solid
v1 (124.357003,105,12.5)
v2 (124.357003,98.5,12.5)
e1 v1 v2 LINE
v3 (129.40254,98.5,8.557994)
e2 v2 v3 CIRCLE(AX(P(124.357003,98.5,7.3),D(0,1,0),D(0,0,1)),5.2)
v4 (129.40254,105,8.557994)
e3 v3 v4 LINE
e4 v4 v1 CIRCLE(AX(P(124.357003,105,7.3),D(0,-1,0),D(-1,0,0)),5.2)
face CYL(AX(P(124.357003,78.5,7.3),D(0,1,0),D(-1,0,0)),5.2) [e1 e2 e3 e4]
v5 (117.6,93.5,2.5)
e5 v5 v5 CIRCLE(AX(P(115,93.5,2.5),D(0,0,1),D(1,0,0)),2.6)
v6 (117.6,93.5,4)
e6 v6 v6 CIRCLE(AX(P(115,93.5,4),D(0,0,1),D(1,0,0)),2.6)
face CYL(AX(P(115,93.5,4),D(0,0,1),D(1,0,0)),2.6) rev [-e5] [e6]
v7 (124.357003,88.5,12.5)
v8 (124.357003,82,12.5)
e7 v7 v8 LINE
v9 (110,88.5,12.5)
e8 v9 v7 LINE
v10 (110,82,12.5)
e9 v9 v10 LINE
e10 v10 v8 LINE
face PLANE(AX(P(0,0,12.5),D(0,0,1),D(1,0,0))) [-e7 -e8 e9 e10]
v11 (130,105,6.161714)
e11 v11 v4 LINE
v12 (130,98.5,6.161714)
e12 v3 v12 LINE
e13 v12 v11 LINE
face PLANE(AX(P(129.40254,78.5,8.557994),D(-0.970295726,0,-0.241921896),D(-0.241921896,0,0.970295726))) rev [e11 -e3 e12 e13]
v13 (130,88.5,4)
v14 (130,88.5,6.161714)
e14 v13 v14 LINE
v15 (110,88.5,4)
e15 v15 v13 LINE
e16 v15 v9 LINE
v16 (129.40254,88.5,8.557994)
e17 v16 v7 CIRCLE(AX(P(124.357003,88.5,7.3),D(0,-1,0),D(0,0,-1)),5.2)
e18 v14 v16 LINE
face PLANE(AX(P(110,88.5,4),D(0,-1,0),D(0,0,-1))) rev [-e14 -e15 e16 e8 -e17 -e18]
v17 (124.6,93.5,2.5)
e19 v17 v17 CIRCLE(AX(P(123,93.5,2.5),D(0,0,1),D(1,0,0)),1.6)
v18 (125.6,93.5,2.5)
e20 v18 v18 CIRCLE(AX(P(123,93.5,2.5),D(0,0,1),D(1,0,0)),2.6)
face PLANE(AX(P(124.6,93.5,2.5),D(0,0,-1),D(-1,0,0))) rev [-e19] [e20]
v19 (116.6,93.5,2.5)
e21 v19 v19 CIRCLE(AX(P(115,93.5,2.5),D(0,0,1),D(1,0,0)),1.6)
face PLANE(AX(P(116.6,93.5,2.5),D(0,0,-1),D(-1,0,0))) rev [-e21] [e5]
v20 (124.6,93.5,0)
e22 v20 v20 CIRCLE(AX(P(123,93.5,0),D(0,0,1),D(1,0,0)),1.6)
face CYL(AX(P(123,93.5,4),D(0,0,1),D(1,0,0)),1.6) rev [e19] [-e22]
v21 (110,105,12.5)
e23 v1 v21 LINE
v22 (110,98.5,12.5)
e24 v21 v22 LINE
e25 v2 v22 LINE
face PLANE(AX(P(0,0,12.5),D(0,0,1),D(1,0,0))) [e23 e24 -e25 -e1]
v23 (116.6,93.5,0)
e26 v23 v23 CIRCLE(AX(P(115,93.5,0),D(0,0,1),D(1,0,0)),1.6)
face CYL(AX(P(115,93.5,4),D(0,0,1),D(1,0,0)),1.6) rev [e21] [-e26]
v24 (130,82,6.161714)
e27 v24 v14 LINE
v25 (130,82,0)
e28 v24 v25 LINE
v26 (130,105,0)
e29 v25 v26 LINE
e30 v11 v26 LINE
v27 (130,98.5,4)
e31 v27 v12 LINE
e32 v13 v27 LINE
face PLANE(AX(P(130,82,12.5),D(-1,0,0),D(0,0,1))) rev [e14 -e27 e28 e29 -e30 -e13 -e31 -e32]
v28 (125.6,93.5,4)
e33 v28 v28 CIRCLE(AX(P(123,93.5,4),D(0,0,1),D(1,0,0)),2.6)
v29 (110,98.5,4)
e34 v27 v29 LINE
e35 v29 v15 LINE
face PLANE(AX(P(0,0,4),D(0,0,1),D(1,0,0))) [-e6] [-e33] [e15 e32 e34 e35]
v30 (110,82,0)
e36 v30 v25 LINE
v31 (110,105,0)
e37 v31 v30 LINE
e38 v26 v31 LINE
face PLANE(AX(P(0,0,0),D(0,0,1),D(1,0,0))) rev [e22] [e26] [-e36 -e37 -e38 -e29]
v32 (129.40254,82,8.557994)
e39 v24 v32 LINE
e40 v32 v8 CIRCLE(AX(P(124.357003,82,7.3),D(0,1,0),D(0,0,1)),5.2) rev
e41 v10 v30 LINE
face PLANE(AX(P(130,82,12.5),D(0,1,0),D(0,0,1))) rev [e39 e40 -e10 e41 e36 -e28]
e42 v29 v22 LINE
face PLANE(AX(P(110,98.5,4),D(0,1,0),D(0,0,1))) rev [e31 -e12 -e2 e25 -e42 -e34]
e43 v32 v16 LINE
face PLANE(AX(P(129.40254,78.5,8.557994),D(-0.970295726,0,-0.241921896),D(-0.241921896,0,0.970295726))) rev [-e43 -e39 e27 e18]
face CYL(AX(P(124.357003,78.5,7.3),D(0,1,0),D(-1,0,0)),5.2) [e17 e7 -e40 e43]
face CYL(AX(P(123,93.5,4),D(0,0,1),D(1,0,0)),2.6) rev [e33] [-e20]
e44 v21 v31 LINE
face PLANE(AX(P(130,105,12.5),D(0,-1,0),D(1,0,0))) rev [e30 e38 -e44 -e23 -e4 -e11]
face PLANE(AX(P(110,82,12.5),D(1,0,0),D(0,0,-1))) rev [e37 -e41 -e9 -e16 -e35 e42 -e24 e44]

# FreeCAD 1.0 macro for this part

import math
import FreeCAD as App
import Part
import Sketcher
Q = App.Units.Quantity

doc = App.newDocument("Part")
params = doc.addObject("Spreadsheet::Sheet", "Params")
for row, (alias, value) in enumerate([
    ("sketch1_width", "20 mm"),
    ("sketch1_height", "23 mm"),
    ("pad1_length", "12.5 mm"),
    ("sketch2_radius", "5.2 mm"),
    ("pocket1_length", "26.5 mm"),
    ("sketch3_width", "20 mm"),
    ("sketch3_height", "10 mm"),
    ("pocket2_length", "8.5 mm"),
    ("sketch4_diameter", "3.2 mm"),
    ("hole_diameter", "3.2 mm"),
    ("hole_cbore_diameter", "5.2 mm"),
    ("hole_cbore_depth", "1.5 mm"),
], start=1):
    params.set(f"A{row}", alias)
    params.set(f"B{row}", "=" + value)
    params.setAlias(f"B{row}", alias)

body = doc.addObject("PartDesign::Body", "Body")

sketch1 = body.newObject("Sketcher::SketchObject", "Sketch")
sketch1.AttachmentSupport = (doc.getObject("XY_Plane"), [""])
sketch1.MapMode = "FlatFace"
sketch1.addGeometry([
    Part.LineSegment(App.Vector(110, 105, 0), App.Vector(110, 82, 0)),
    Part.LineSegment(App.Vector(110, 82, 0), App.Vector(130, 82, 0)),
    Part.LineSegment(App.Vector(130, 82, 0), App.Vector(130, 105, 0)),
    Part.LineSegment(App.Vector(130, 105, 0), App.Vector(110, 105, 0)),
], False)
sketch1.addConstraint([
    Sketcher.Constraint("Coincident", 0, 2, 1, 1),
    Sketcher.Constraint("Coincident", 1, 2, 2, 1),
    Sketcher.Constraint("Coincident", 2, 2, 3, 1),
    Sketcher.Constraint("Coincident", 3, 2, 0, 1),
    Sketcher.Constraint("Vertical", 0),
    Sketcher.Constraint("Horizontal", 1),
    Sketcher.Constraint("Vertical", 2),
    Sketcher.Constraint("Horizontal", 3),
    Sketcher.Constraint("DistanceX", 1, 1, 1, 2, 20.0),
    Sketcher.Constraint("DistanceY", 0, 2, 0, 1, 23.0),
    Sketcher.Constraint("DistanceX", -1, 1, 0, 2, 110.0),
    Sketcher.Constraint("DistanceY", -1, 1, 0, 2, 82.0),
])
sketch1.setExpression("Constraints[8]", "Params.sketch1_width")
sketch1.setExpression("Constraints[9]", "Params.sketch1_height")
pad1 = body.newObject("PartDesign::Pad", "Pad")
pad1.Profile = sketch1
pad1.setExpression("Length", "Params.pad1_length")

sketch2 = body.newObject("Sketcher::SketchObject", "Sketch001")
sketch2.AttachmentSupport = (doc.getObject("XZ_Plane"), [""])
sketch2.MapMode = "FlatFace"
sketch2.AttachmentOffset = App.Placement(App.Vector(0, 0, -105), App.Rotation())
sketch2.addGeometry([
    Part.LineSegment(App.Vector(130, 6.2, 0), App.Vector(129.4, 8.6, 0)),
    Part.ArcOfCircle(Part.Circle(App.Vector(124.4, 7.3, 0), App.Vector(0, 0, 1), 5.2), math.radians(14), math.radians(90)),
    Part.LineSegment(App.Vector(124.4, 12.5, 0), App.Vector(130, 12.5, 0)),
    Part.LineSegment(App.Vector(130, 12.5, 0), App.Vector(130, 6.2, 0)),
], False)
sketch2.addConstraint([
    Sketcher.Constraint("Tangent", 0, 2, 1, 1),
    Sketcher.Constraint("Tangent", 1, 2, 2, 1),
    Sketcher.Constraint("Coincident", 2, 2, 3, 1),
    Sketcher.Constraint("Coincident", 3, 2, 0, 1),
    Sketcher.Constraint("Horizontal", 2),
    Sketcher.Constraint("Vertical", 3),
    Sketcher.Constraint("Radius", 1, 5.2),
    Sketcher.Constraint("Angle", 0, Q("104 deg")),
    Sketcher.Constraint("DistanceX", -1, 1, 2, 2, 130.0),
    Sketcher.Constraint("DistanceY", -1, 1, 1, 3, 7.3),
    Sketcher.Constraint("Distance", 0, 2.469639),
])
sketch2.setExpression("Constraints[6]", "Params.sketch2_radius")
pocket1 = body.newObject("PartDesign::Pocket", "Pocket")
pocket1.Profile = sketch2
pocket1.setExpression("Length", "Params.pocket1_length")
pocket1.Reversed = True

sketch3 = body.newObject("Sketcher::SketchObject", "Sketch002")
sketch3.AttachmentSupport = (doc.getObject("XY_Plane"), [""])
sketch3.MapMode = "FlatFace"
sketch3.AttachmentOffset = App.Placement(App.Vector(0, 0, 12.5), App.Rotation())
sketch3.addGeometry([
    Part.LineSegment(App.Vector(110, 98, 0), App.Vector(110, 88, 0)),
    Part.LineSegment(App.Vector(110, 88, 0), App.Vector(130, 88, 0)),
    Part.LineSegment(App.Vector(130, 88, 0), App.Vector(130, 98, 0)),
    Part.LineSegment(App.Vector(130, 98, 0), App.Vector(110, 98, 0)),
], False)
sketch3.addConstraint([
    Sketcher.Constraint("Coincident", 0, 2, 1, 1),
    Sketcher.Constraint("Coincident", 1, 2, 2, 1),
    Sketcher.Constraint("Coincident", 2, 2, 3, 1),
    Sketcher.Constraint("Coincident", 3, 2, 0, 1),
    Sketcher.Constraint("Vertical", 0),
    Sketcher.Constraint("Horizontal", 1),
    Sketcher.Constraint("Vertical", 2),
    Sketcher.Constraint("Horizontal", 3),
    Sketcher.Constraint("DistanceX", 1, 1, 1, 2, 20.0),
    Sketcher.Constraint("DistanceY", 0, 2, 0, 1, 10.0),
    Sketcher.Constraint("DistanceX", -1, 1, 0, 2, 110.0),
    Sketcher.Constraint("DistanceY", -1, 1, 0, 2, 88.5),
])
sketch3.setExpression("Constraints[8]", "Params.sketch3_width")
sketch3.setExpression("Constraints[9]", "Params.sketch3_height")
pocket2 = body.newObject("PartDesign::Pocket", "Pocket001")
pocket2.Profile = sketch3
pocket2.setExpression("Length", "Params.pocket2_length")

sketch4 = body.newObject("Sketcher::SketchObject", "Sketch003")
sketch4.AttachmentSupport = (doc.getObject("XY_Plane"), [""])
sketch4.MapMode = "FlatFace"
sketch4.AttachmentOffset = App.Placement(App.Vector(0, 0, 4), App.Rotation())
sketch4.addGeometry([
    Part.Circle(App.Vector(115, 93.5, 0), App.Vector(0, 0, 1), 1.6),
    Part.Circle(App.Vector(123, 93.5, 0), App.Vector(0, 0, 1), 1.6),
], False)
sketch4.addConstraint([
    Sketcher.Constraint("Equal", 0, 1),
    Sketcher.Constraint("Horizontal", 0, 3, 1, 3),
    Sketcher.Constraint("Diameter", 0, 3.2),
    Sketcher.Constraint("DistanceX", -1, 1, 0, 3, 115.0),
    Sketcher.Constraint("DistanceX", -1, 1, 1, 3, 123.0),
    Sketcher.Constraint("DistanceY", -1, 1, 0, 3, 93.5),
])
sketch4.setExpression("Constraints[2]", "Params.sketch4_diameter")
doc.recompute()
hole = body.newObject("PartDesign::Hole", "Hole")
hole.Profile = sketch4
hole.ThreadType = "None"
hole.setExpression("Diameter", "Params.hole_diameter")
hole.DepthType = "ThroughAll"
hole.HoleCutType = "Counterbore"
hole.setExpression("HoleCutDiameter", "Params.hole_cbore_diameter")
hole.setExpression("HoleCutDepth", "Params.hole_cbore_depth")

doc.recompute()
